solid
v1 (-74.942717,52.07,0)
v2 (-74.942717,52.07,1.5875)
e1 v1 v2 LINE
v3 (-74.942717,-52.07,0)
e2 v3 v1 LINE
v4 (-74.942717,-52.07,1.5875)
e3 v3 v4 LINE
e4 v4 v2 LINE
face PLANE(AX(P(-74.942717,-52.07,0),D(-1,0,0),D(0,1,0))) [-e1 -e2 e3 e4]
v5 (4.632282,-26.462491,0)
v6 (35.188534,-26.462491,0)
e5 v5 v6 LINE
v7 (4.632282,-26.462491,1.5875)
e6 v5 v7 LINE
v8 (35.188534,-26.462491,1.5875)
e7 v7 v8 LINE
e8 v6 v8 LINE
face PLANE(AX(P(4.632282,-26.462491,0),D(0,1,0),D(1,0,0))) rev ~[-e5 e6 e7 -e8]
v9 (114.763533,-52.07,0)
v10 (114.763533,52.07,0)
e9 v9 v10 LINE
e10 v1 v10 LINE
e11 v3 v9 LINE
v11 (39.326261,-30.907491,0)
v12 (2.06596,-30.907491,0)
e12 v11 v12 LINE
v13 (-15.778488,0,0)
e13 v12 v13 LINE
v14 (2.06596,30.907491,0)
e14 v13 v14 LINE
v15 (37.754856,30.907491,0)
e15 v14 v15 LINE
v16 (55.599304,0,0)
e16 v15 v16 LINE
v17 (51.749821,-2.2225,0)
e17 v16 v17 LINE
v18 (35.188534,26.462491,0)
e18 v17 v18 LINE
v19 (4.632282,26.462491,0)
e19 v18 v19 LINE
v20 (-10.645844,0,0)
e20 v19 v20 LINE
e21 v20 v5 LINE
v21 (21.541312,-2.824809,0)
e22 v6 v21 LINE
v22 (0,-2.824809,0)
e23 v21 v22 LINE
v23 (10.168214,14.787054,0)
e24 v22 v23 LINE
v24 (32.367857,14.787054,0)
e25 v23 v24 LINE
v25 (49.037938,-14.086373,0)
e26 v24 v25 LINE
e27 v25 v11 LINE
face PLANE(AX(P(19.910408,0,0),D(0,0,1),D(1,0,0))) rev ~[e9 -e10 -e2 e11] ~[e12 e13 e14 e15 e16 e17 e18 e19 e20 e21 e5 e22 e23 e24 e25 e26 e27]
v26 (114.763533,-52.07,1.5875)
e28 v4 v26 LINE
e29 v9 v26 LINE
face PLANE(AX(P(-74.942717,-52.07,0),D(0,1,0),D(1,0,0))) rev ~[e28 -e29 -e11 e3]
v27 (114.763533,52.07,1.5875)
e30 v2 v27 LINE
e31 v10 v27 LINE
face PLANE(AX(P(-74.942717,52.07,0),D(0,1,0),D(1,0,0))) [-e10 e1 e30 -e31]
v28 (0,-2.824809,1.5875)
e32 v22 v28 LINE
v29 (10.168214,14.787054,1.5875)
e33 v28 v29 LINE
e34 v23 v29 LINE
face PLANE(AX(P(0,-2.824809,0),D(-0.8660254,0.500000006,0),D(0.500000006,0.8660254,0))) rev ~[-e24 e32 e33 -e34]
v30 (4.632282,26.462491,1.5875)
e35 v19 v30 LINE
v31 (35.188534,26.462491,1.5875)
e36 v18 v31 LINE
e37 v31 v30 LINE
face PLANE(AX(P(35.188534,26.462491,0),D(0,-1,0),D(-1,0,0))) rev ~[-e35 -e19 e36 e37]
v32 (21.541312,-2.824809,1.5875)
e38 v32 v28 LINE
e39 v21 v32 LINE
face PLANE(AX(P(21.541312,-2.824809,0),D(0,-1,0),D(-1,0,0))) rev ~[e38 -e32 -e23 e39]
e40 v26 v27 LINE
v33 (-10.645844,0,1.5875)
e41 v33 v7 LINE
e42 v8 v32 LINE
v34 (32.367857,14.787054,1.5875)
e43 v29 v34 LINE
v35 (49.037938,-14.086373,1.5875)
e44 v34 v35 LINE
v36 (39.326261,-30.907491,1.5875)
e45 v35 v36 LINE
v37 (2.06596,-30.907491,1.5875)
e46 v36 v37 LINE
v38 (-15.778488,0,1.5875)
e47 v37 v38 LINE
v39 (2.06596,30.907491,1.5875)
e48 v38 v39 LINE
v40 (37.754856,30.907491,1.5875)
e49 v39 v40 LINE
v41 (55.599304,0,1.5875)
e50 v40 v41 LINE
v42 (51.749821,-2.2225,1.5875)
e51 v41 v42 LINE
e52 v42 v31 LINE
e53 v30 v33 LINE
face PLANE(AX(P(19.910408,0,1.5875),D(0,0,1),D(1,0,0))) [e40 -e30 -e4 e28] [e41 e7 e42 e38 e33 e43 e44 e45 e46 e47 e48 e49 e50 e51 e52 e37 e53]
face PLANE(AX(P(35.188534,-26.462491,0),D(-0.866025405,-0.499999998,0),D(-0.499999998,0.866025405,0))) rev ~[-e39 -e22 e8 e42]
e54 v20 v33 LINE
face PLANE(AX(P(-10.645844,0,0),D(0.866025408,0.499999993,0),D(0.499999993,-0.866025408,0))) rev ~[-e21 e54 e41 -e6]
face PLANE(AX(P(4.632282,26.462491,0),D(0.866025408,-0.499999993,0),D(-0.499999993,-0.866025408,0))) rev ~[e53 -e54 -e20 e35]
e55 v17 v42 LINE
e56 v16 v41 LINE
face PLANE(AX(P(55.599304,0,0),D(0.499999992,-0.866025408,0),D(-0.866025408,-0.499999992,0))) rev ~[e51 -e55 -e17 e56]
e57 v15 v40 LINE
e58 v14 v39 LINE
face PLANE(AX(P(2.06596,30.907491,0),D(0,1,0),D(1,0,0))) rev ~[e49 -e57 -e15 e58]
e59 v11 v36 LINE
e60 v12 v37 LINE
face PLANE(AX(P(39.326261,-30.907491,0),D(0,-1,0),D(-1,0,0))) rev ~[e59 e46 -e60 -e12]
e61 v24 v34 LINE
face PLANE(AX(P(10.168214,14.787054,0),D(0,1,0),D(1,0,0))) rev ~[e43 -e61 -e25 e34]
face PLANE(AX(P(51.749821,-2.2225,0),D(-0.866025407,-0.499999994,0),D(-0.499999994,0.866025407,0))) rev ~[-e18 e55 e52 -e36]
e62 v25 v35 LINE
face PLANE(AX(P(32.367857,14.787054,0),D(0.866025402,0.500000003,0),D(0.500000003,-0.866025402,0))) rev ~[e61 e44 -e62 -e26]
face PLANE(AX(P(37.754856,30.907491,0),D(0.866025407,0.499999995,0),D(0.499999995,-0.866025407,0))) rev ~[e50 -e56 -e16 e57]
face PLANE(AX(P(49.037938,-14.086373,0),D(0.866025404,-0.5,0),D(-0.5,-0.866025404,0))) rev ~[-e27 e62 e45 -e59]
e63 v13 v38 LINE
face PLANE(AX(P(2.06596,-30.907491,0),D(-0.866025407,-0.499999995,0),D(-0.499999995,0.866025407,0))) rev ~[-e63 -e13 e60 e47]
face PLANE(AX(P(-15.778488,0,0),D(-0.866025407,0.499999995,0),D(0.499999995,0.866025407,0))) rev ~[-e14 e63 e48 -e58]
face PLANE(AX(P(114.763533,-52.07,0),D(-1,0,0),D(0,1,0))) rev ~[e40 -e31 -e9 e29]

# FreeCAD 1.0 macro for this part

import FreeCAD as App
import Part
import Sketcher

V = App.Vector
Q = App.Units.Quantity


def add_polygon(sketch, points):
    """Adds a closed chain of lines whose ends are joined by coincident constraints."""
    first, n = sketch.GeometryCount, len(points)
    for a, b in zip(points, points[1:] + points[:1]):
        sketch.addGeometry(Part.LineSegment(App.Vector(*a, 0), App.Vector(*b, 0)), False)
    for i in range(n):
        sketch.addConstraint(Sketcher.Constraint("Coincident", first + i, 2, first + (i + 1) % n, 1))

doc = App.newDocument("Part")
body = doc.addObject("PartDesign::Body", "Body")

# Sketch on XY plane
sketch1 = body.newObject("Sketcher::SketchObject", "Sketch")
sketch1.AttachmentSupport = (doc.getObject("XY_Plane"), [""])
sketch1.MapMode = "FlatFace"
add_polygon(sketch1, [(-74.942717, 52.07), (-74.942717, -52.07), (114.763533, -52.07), (114.763533, 52.07)])  # lines 0-3
add_polygon(sketch1, [(49.037938, -14.086373), (39.326261, -30.907491), (2.06596, -30.907491), (-15.778488, 0), (2.06596, 30.907491), (37.754856, 30.907491), (55.599304, 0), (51.749821, -2.2225), (35.188534, 26.462491), (4.632282, 26.462491), (-10.645844, 0), (4.632282, -26.462491), (35.188534, -26.462491), (21.541312, -2.824809), (0, -2.824809), (10.168214, 14.787054), (32.367857, 14.787054)])  # lines 4-20
sketch1.addConstraint(Sketcher.Constraint("Vertical", 0))
sketch1.addConstraint(Sketcher.Constraint("Horizontal", 1))
sketch1.addConstraint(Sketcher.Constraint("Vertical", 2))
sketch1.addConstraint(Sketcher.Constraint("Horizontal", 3))
sketch1.addConstraint(Sketcher.Constraint("Horizontal", 5))
sketch1.addConstraint(Sketcher.Constraint("Horizontal", 8))
sketch1.addConstraint(Sketcher.Constraint("Horizontal", 12))
sketch1.addConstraint(Sketcher.Constraint("Horizontal", 15))
sketch1.addConstraint(Sketcher.Constraint("Horizontal", 17))
sketch1.addConstraint(Sketcher.Constraint("Horizontal", 19))
sketch1.addConstraint(Sketcher.Constraint("Symmetric", 5, 2, 7, 2, -1))
sketch1.addConstraint(Sketcher.Constraint("Symmetric", 12, 2, 14, 2, -1))
sketch1.addConstraint(Sketcher.Constraint("PointOnObject", 6, 2, -1))
sketch1.addConstraint(Sketcher.Constraint("PointOnObject", 9, 2, -1))
sketch1.addConstraint(Sketcher.Constraint("PointOnObject", 13, 2, -1))
sketch1.addConstraint(Sketcher.Constraint("PointOnObject", 17, 2, -2))
sketch1.addConstraint(Sketcher.Constraint("Parallel", 4, 7))
sketch1.addConstraint(Sketcher.Constraint("Parallel", 6, 9))
sketch1.addConstraint(Sketcher.Constraint("Perpendicular", 9, 10))
sketch1.addConstraint(Sketcher.Constraint("Perpendicular", 10, 11))
sketch1.addConstraint(Sketcher.Constraint("Parallel", 7, 13))
sketch1.addConstraint(Sketcher.Constraint("Parallel", 14, 16))
sketch1.addConstraint(Sketcher.Constraint("Parallel", 13, 18))
sketch1.addConstraint(Sketcher.Constraint("Parallel", 16, 20))
sketch1.addConstraint(Sketcher.Constraint("Vertical", 11, 2, 15, 2))
sketch1.addConstraint(Sketcher.Constraint("DistanceY", 0, 2, 0, 1, Q("4.1 in")))
sketch1.addConstraint(Sketcher.Constraint("Angle", 4, Q("-120 deg")))
sketch1.addConstraint(Sketcher.Constraint("DistanceX", 1, 1, 1, 2, Q("7.46875 in")))
sketch1.addConstraint(Sketcher.Constraint("DistanceY", 0, 2, -1, 1, Q("2.05 in")))
sketch1.addConstraint(Sketcher.Constraint("Distance", 10, Q("0.175 in")))
sketch1.addConstraint(Sketcher.Constraint("DistanceY", 11, 2, 8, 2, Q("0.175 in")))
sketch1.addConstraint(Sketcher.Constraint("DistanceX", 5, 2, 5, 1, 37.260301))
sketch1.addConstraint(Sketcher.Constraint("DistanceX", 12, 2, 12, 1, 30.556252))
sketch1.addConstraint(Sketcher.Constraint("DistanceY", 16, 2, 11, 2, 29.2873))
sketch1.addConstraint(Sketcher.Constraint("DistanceX", 19, 2, 8, 2, 5.386999))
sketch1.addConstraint(Sketcher.Constraint("Distance", 20, 33.340162))
sketch1.addConstraint(Sketcher.Constraint("DistanceX", 8, 1, 8, 2, 35.688896))
sketch1.addConstraint(Sketcher.Constraint("DistanceX", 17, 2, 17, 1, 21.541312))
sketch1.addConstraint(Sketcher.Constraint("DistanceX", 19, 1, 19, 2, 22.199643))
sketch1.addConstraint(Sketcher.Constraint("DistanceX", 4, 2, 1, 2, 75.437272))
pad1 = body.newObject("PartDesign::Pad", "Pad")
pad1.Profile = sketch1
pad1.Length = Q("0.0625 in")

doc.recompute()
